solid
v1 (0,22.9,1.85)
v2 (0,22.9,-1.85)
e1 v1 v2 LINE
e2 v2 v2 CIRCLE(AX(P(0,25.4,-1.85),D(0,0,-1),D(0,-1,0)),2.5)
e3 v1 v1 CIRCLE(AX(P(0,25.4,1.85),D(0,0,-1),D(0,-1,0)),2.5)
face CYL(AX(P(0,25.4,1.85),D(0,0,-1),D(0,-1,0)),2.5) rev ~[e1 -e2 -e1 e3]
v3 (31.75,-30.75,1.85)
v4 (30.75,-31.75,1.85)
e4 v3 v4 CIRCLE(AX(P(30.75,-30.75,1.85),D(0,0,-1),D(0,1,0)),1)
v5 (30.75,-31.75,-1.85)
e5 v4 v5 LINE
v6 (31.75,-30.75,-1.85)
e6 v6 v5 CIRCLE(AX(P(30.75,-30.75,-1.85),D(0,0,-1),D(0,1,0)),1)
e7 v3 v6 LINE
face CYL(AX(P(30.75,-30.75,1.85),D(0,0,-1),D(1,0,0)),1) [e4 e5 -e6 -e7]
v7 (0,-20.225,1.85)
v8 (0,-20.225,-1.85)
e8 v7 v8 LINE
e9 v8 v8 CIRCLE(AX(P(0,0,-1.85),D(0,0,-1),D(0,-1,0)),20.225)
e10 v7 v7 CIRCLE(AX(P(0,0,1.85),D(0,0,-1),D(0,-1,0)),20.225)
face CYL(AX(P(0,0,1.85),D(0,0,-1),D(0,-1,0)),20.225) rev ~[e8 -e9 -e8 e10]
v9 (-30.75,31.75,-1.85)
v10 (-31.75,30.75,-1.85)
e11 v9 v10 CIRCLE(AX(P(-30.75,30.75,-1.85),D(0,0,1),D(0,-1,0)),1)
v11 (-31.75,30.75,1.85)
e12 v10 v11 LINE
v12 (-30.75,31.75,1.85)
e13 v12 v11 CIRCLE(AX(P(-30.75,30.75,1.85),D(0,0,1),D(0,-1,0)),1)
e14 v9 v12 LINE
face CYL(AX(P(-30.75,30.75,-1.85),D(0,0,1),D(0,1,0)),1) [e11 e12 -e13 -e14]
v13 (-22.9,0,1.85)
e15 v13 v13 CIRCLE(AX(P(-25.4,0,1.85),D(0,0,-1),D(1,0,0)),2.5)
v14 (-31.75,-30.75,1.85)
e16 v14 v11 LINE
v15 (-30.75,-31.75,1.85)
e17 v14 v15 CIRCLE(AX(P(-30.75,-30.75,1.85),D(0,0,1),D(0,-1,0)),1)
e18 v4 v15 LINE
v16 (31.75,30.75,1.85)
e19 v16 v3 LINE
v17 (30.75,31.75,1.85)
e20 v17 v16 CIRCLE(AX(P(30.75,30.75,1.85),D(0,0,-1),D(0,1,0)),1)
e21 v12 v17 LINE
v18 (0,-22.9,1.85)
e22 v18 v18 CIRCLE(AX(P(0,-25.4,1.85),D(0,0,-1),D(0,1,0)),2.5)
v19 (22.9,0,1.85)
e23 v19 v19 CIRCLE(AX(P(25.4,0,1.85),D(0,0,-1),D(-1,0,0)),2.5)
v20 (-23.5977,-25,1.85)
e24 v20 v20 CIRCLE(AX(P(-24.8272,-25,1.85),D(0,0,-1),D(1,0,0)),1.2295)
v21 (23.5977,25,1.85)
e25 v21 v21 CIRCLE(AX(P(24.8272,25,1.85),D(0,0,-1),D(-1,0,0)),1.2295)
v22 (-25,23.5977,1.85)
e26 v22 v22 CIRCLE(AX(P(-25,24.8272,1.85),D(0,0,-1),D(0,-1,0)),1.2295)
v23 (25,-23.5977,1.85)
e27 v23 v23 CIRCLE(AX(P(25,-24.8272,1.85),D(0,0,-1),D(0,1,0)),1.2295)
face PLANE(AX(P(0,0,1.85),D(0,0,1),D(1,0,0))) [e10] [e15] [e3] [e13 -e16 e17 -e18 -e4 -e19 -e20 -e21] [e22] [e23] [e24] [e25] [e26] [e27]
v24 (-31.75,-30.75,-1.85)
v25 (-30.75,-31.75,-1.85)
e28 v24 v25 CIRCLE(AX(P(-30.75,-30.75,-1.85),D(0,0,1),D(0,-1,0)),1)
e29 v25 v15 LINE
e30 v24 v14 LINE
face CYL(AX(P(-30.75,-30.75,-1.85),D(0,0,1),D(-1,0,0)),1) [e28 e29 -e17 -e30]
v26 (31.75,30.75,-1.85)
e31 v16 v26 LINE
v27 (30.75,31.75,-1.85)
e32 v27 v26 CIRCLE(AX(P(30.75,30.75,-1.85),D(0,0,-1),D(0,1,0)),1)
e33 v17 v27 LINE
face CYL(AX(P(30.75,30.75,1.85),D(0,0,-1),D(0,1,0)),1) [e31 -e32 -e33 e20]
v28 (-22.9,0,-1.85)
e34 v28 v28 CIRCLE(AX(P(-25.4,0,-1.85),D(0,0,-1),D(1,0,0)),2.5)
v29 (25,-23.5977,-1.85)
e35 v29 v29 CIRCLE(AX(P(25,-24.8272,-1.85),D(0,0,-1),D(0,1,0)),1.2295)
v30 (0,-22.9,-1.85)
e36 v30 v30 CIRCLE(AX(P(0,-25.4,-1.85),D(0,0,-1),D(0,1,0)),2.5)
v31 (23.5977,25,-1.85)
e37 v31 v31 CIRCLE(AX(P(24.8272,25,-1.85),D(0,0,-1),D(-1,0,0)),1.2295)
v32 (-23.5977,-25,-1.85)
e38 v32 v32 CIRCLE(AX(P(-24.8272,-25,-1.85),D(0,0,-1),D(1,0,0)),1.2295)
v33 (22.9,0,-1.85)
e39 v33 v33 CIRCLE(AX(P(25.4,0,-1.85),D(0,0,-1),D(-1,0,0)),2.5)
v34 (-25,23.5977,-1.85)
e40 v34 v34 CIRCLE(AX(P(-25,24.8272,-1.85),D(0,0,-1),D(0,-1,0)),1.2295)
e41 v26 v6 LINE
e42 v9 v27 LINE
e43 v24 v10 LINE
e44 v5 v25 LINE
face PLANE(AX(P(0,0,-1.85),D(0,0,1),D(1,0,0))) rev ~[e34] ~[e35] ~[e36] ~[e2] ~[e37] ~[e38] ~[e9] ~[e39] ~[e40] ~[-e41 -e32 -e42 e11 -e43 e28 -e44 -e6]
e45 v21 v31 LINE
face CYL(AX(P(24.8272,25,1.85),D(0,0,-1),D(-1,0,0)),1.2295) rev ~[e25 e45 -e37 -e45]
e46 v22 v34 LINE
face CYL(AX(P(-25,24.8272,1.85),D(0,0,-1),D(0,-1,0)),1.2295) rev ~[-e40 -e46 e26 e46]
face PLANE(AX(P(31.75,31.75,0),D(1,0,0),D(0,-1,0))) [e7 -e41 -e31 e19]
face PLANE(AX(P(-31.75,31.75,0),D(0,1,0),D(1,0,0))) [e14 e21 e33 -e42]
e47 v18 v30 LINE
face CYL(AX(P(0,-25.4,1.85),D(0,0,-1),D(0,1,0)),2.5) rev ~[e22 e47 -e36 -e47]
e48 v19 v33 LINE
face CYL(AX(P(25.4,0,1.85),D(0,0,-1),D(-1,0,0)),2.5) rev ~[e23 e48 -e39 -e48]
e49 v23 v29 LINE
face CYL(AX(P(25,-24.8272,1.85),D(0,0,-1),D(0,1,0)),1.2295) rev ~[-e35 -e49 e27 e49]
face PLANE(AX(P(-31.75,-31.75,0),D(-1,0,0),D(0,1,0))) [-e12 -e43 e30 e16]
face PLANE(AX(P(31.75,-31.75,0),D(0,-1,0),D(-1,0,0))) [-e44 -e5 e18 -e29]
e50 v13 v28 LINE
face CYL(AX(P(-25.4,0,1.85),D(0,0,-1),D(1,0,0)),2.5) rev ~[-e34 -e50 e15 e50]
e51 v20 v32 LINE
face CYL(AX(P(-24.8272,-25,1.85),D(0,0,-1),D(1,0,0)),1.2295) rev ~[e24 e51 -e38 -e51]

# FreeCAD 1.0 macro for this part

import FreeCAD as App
import Part
import Sketcher
from FreeCAD import Vector
Q = App.Units.Quantity


def edges_at(feature, points):
    """Names of the edges that pass closest to the given points."""
    edges = feature.Shape.Edges
    near = lambda p: min(range(len(edges)), key=lambda i: edges[i].distToShape(Part.Vertex(*p))[0])
    return sorted({f"Edge{near(p) + 1}" for p in points})


def add_polygon(sketch, points):
    """Adds a closed chain of lines whose ends are joined by coincident constraints."""
    first, n = sketch.GeometryCount, len(points)
    for a, b in zip(points, points[1:] + points[:1]):
        sketch.addGeometry(Part.LineSegment(App.Vector(*a, 0), App.Vector(*b, 0)), False)
    for i in range(n):
        sketch.addConstraint(Sketcher.Constraint("Coincident", first + i, 2, first + (i + 1) % n, 1))

doc = App.newDocument("Part")
body = doc.addObject("PartDesign::Body", "Body")

# Sketch on XY plane
sketch1 = body.newObject("Sketcher::SketchObject", "Sketch")
sketch1.AttachmentSupport = (doc.getObject("XY_Plane"), [""])
sketch1.MapMode = "FlatFace"
add_polygon(sketch1, [(32, 32), (-32, 32), (-32, -32), (32, -32)])  # lines 0-3
sketch1.addConstraint([
    Sketcher.Constraint("Horizontal", 0),
    Sketcher.Constraint("Vertical", 1),
    Sketcher.Constraint("Horizontal", 2),
    Sketcher.Constraint("Vertical", 3),
    Sketcher.Constraint("Symmetric", 0, 2, 2, 2, -1, 1),
    Sketcher.Constraint("Equal", 2, 1),
    Sketcher.Constraint("DistanceX", 0, 2, 0, 1, Q("63.5 mm")),
])
pad1 = body.newObject("PartDesign::Pad", "Pad")
pad1.Profile = sketch1
pad1.Length = 3.7
pad1.Midplane = True

# Sketch on XY plane
sketch2 = body.newObject("Sketcher::SketchObject", "Sketch001")
sketch2.AttachmentSupport = (doc.getObject("XY_Plane"), [""])
sketch2.MapMode = "FlatFace"
sketch2.AttachmentOffset = App.Placement(Vector(0, 0, 1.85), App.Rotation())
sketch2.addGeometry(Part.Circle(Vector(0, 0, 0), Vector(0, 0, 1), 20), False)
sketch2.addConstraint([
    Sketcher.Constraint("Coincident", 0, 3, -1, 1),
    Sketcher.Constraint("Diameter", 0, Q("40.45 mm")),
])
doc.recompute()
hole = body.newObject("PartDesign::Hole", "Hole")
hole.Profile = sketch2
hole.ThreadType = "None"
hole.Diameter = 40.45
hole.DepthType = "ThroughAll"

# Sketch on XY plane
sketch3 = body.newObject("Sketcher::SketchObject", "Sketch002")
sketch3.AttachmentSupport = (doc.getObject("XY_Plane"), [""])
sketch3.MapMode = "FlatFace"
sketch3.AttachmentOffset = App.Placement(Vector(0, 0, 1.85), App.Rotation())
sketch3.addGeometry(Part.Circle(Vector(0, 25.4, 0), Vector(0, 0, 1), 2.5), False)
sketch3.addConstraint([
    Sketcher.Constraint("PointOnObject", 0, 3, -2),
    Sketcher.Constraint("Diameter", 0, Q("5 mm")),
    Sketcher.Constraint("DistanceY", -1, 1, 0, 3, Q("25.4 mm")),
])
doc.recompute()
hole2 = body.newObject("PartDesign::Hole", "Hole001")
hole2.Profile = sketch3
hole2.ThreadType = "None"
hole2.Diameter = 5
hole2.DepthType = "ThroughAll"
doc.recompute()

polarpattern = body.newObject("PartDesign::PolarPattern", "PolarPattern")
polarpattern.Originals = [hole2]
polarpattern.Axis = (doc.getObject("Z_Axis"), [""])
polarpattern.Angle = 360
polarpattern.Occurrences = 4
body.Tip = polarpattern

# Sketch on XY plane
sketch4 = body.newObject("Sketcher::SketchObject", "Sketch003")
sketch4.AttachmentSupport = (doc.getObject("XY_Plane"), [""])
sketch4.MapMode = "FlatFace"
sketch4.AttachmentOffset = App.Placement(Vector(0, 0, 1.85), App.Rotation())
sketch4.addGeometry(Part.Circle(Vector(-25, 24.8, 0), Vector(0, 0, 1), 1.2), False)
sketch4.addConstraint([
    Sketcher.Constraint("Diameter", 0, Q("2.459 mm")),
    Sketcher.Constraint("DistanceX", 0, 3, -1, 1, Q("25 mm")),
    Sketcher.Constraint("DistanceY", -1, 1, 0, 3, Q("24.8272 mm")),
])
doc.recompute()
hole3 = body.newObject("PartDesign::Hole", "Hole002")
hole3.Profile = sketch4
hole3.ThreadType = "None"
hole3.Diameter = 2.459
hole3.DepthType = "ThroughAll"
doc.recompute()

polarpattern2 = body.newObject("PartDesign::PolarPattern", "PolarPattern001")
polarpattern2.Originals = [hole3]
polarpattern2.Axis = (doc.getObject("Z_Axis"), [""])
polarpattern2.Angle = 360
polarpattern2.Occurrences = 4
body.Tip = polarpattern2
doc.recompute()

fillet = body.newObject("PartDesign::Fillet", "Fillet")
fillet.Base = (polarpattern2, edges_at(polarpattern2, [
    (-31.75, 31.75, 0),
    (-31.75, -31.75, 0),
    (31.75, -31.75, 0),
    (31.75, 31.75, 0),
]))
fillet.Radius = 1

doc.recompute()
